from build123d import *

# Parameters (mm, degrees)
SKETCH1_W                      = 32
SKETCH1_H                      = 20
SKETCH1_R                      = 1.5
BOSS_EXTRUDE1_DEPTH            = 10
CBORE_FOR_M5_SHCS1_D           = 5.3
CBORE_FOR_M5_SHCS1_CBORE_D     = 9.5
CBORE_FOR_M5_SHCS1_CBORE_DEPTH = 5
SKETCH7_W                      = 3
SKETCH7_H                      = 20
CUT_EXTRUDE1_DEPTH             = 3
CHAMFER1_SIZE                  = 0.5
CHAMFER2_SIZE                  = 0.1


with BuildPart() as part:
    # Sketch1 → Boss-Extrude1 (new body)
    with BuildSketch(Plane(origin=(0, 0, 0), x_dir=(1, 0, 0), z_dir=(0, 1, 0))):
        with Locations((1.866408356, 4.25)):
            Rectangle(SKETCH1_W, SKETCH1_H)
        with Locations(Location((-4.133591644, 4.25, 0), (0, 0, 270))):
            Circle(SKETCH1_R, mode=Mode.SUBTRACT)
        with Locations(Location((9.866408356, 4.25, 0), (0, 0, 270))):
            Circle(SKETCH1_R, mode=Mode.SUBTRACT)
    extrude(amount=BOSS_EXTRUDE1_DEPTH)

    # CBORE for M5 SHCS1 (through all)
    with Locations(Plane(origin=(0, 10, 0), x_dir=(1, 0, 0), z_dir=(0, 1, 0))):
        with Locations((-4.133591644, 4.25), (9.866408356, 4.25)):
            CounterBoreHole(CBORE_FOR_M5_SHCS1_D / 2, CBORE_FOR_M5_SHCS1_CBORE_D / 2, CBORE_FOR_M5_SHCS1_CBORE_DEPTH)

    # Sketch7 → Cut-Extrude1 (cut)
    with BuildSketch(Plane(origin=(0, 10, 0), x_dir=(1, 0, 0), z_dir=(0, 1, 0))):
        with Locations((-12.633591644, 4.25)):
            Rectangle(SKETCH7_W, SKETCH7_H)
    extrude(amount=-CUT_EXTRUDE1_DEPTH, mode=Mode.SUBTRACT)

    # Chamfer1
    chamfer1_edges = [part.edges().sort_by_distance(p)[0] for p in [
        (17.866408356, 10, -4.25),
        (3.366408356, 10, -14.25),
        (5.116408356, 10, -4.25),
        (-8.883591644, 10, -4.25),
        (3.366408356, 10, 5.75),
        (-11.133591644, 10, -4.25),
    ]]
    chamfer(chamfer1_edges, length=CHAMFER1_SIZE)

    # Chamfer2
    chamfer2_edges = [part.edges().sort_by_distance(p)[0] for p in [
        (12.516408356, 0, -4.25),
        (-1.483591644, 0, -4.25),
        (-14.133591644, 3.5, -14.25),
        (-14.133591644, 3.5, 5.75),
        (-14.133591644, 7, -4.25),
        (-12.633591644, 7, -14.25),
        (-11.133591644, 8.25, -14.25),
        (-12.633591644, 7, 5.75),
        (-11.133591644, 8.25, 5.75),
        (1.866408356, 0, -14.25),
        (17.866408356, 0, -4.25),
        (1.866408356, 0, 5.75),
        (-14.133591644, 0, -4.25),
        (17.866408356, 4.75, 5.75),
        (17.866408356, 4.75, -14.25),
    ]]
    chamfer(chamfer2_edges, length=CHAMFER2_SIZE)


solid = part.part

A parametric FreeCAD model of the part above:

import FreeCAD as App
import Part
import Sketcher


def edges_at(feature, points):
    """Names of the edges that pass closest to the given points."""
    edges = feature.Shape.Edges
    near = lambda p: min(range(len(edges)), key=lambda i: edges[i].distToShape(Part.Vertex(*p))[0])
    return sorted({f"Edge{near(p) + 1}" for p in points})

doc = App.newDocument("Part")
body = doc.addObject("PartDesign::Body", "Body")

# Sketch on XZ plane
sketch1 = doc.addObject("Sketcher::SketchObject", "Sketch")
body.addObject(sketch1)
sketch1.AttachmentSupport = (doc.XZ_Plane, [""])
sketch1.MapMode = "FlatFace"
sketch1.addGeometry([
    Part.LineSegment(App.Vector(-14.1, -14.2, 0), App.Vector(-14.1, 5.8, 0)),  # 0
    Part.LineSegment(App.Vector(-14.1, 5.8, 0), App.Vector(17.9, 5.8, 0)),  # 1
    Part.LineSegment(App.Vector(17.9, 5.8, 0), App.Vector(17.9, -14.2, 0)),  # 2
    Part.LineSegment(App.Vector(17.9, -14.2, 0), App.Vector(-14.1, -14.2, 0)),  # 3
    Part.Circle(App.Vector(-4.1, -4.2, 0), App.Vector(0, 0, 1), 1.5),  # 4
    Part.Circle(App.Vector(9.9, -4.2, 0), App.Vector(0, 0, 1), 1.5),  # 5
], False)
sketch1.addConstraint([
    Sketcher.Constraint("Coincident", 0, 2, 1, 1),
    Sketcher.Constraint("Coincident", 1, 2, 2, 1),
    Sketcher.Constraint("Coincident", 2, 2, 3, 1),
    Sketcher.Constraint("Coincident", 3, 2, 0, 1),
    Sketcher.Constraint("Vertical", 0),
    Sketcher.Constraint("Horizontal", 1),
    Sketcher.Constraint("Vertical", 2),
    Sketcher.Constraint("Horizontal", 3),
    Sketcher.Constraint("Equal", 4, 5),
    Sketcher.Constraint("Horizontal", 4, 3, 5, 3),
    Sketcher.Constraint("Diameter", 4, 3.0),
    Sketcher.Constraint("DistanceX", 1, 1, 1, 2, 32.0),
    Sketcher.Constraint("DistanceY", 0, 1, 0, 2, 20.0),
    Sketcher.Constraint("DistanceX", 4, 3, 5, 3, 14.0),
    Sketcher.Constraint("DistanceX", 0, 2, 4, 3, 10.0),
    Sketcher.Constraint("DistanceY", 4, 3, 0, 2, 10.0),
    Sketcher.Constraint("DistanceY", 4, 3, -1, 1, 4.25),
    Sketcher.Constraint("DistanceX", 4, 3, -1, 1, 4.133592),
])
pad1 = doc.addObject("PartDesign::Pad", "Pad")
body.addObject(pad1)
pad1.Profile = sketch1
pad1.Length = 10
pad1.Reversed = True

# Sketch on XZ plane
sketch2 = doc.addObject("Sketcher::SketchObject", "Sketch001")
body.addObject(sketch2)
sketch2.AttachmentSupport = (doc.XZ_Plane, [""])
sketch2.MapMode = "FlatFace"
sketch2.AttachmentOffset = App.Placement(App.Vector(0, 0, -10), App.Rotation())
sketch2.addGeometry([
    Part.Circle(App.Vector(-4.1, -4.2, 0), App.Vector(0, 0, 1), 2.6),
    Part.Circle(App.Vector(9.9, -4.2, 0), App.Vector(0, 0, 1), 2.6),
], False)
sketch2.addConstraint([
    Sketcher.Constraint("Equal", 0, 1),
    Sketcher.Constraint("Horizontal", 0, 3, 1, 3),
    Sketcher.Constraint("Diameter", 0, 5.3),
    Sketcher.Constraint("DistanceX", 0, 3, 1, 3, 14.0),
    Sketcher.Constraint("DistanceY", 0, 3, -1, 1, 4.25),
    Sketcher.Constraint("DistanceX", 0, 3, -1, 1, 4.133592),
])
doc.recompute()
hole = doc.addObject("PartDesign::Hole", "Hole")
body.addObject(hole)
hole.Profile = sketch2
hole.ThreadType = "None"
hole.Diameter = 5.3
hole.DepthType = "ThroughAll"
hole.HoleCutType = "Counterbore"
hole.HoleCutDiameter = 9.5
hole.HoleCutDepth = 5
hole.Reversed = True

# Sketch on XZ plane
sketch3 = doc.addObject("Sketcher::SketchObject", "Sketch002")
body.addObject(sketch3)
sketch3.AttachmentSupport = (doc.XZ_Plane, [""])
sketch3.MapMode = "FlatFace"
sketch3.AttachmentOffset = App.Placement(App.Vector(0, 0, -10), App.Rotation())
sketch3.addGeometry([
    Part.LineSegment(App.Vector(-14.1, -14.2, 0), App.Vector(-14.1, 5.8, 0)),
    Part.LineSegment(App.Vector(-14.1, 5.8, 0), App.Vector(-11.1, 5.8, 0)),
    Part.LineSegment(App.Vector(-11.1, 5.8, 0), App.Vector(-11.1, -14.2, 0)),
    Part.LineSegment(App.Vector(-11.1, -14.2, 0), App.Vector(-14.1, -14.2, 0)),
], False)
sketch3.addConstraint([
    Sketcher.Constraint("Coincident", 0, 2, 1, 1),
    Sketcher.Constraint("Coincident", 1, 2, 2, 1),
    Sketcher.Constraint("Coincident", 2, 2, 3, 1),
    Sketcher.Constraint("Coincident", 3, 2, 0, 1),
    Sketcher.Constraint("Vertical", 0),
    Sketcher.Constraint("Horizontal", 1),
    Sketcher.Constraint("Vertical", 2),
    Sketcher.Constraint("Horizontal", 3),
    Sketcher.Constraint("DistanceX", 1, 1, 1, 2, 3.0),
    Sketcher.Constraint("DistanceY", 0, 1, 0, 2, 20.0),
    Sketcher.Constraint("DistanceY", -1, 1, 0, 2, 5.75),
    Sketcher.Constraint("DistanceX", 0, 2, -1, 1, 14.133592),
])
pocket1 = doc.addObject("PartDesign::Pocket", "Pocket")
body.addObject(pocket1)
pocket1.Profile = sketch3
pocket1.Length = 3
pocket1.Reversed = True
doc.recompute()

chamfer = doc.addObject("PartDesign::Chamfer", "Chamfer")
body.addObject(chamfer)
chamfer.Base = (pocket1, edges_at(pocket1, [
    (17.866, 10, -4.25),
    (3.366, 10, -14.25),
    (5.116, 10, -4.25),
    (-8.884, 10, -4.25),
    (3.366, 10, 5.75),
    (-11.134, 10, -4.25),
]))
chamfer.Size = 0.5
doc.recompute()

chamfer2 = doc.addObject("PartDesign::Chamfer", "Chamfer001")
body.addObject(chamfer2)
chamfer2.Base = (chamfer, edges_at(chamfer, [
    (12.516, 0, -4.25),
    (-1.484, 0, -4.25),
    (-14.134, 3.5, -14.25),
    (-14.134, 3.5, 5.75),
    (-14.134, 7, -4.25),
    (-12.634, 7, -14.25),
    (-11.134, 8.25, -14.25),
    (-12.634, 7, 5.75),
    (-11.134, 8.25, 5.75),
    (1.866, 0, -14.25),
    (17.866, 0, -4.25),
    (1.866, 0, 5.75),
    (-14.134, 0, -4.25),
    (17.866, 4.75, 5.75),
    (17.866, 4.75, -14.25),
]))
chamfer2.Size = 0.1

doc.recompute()
